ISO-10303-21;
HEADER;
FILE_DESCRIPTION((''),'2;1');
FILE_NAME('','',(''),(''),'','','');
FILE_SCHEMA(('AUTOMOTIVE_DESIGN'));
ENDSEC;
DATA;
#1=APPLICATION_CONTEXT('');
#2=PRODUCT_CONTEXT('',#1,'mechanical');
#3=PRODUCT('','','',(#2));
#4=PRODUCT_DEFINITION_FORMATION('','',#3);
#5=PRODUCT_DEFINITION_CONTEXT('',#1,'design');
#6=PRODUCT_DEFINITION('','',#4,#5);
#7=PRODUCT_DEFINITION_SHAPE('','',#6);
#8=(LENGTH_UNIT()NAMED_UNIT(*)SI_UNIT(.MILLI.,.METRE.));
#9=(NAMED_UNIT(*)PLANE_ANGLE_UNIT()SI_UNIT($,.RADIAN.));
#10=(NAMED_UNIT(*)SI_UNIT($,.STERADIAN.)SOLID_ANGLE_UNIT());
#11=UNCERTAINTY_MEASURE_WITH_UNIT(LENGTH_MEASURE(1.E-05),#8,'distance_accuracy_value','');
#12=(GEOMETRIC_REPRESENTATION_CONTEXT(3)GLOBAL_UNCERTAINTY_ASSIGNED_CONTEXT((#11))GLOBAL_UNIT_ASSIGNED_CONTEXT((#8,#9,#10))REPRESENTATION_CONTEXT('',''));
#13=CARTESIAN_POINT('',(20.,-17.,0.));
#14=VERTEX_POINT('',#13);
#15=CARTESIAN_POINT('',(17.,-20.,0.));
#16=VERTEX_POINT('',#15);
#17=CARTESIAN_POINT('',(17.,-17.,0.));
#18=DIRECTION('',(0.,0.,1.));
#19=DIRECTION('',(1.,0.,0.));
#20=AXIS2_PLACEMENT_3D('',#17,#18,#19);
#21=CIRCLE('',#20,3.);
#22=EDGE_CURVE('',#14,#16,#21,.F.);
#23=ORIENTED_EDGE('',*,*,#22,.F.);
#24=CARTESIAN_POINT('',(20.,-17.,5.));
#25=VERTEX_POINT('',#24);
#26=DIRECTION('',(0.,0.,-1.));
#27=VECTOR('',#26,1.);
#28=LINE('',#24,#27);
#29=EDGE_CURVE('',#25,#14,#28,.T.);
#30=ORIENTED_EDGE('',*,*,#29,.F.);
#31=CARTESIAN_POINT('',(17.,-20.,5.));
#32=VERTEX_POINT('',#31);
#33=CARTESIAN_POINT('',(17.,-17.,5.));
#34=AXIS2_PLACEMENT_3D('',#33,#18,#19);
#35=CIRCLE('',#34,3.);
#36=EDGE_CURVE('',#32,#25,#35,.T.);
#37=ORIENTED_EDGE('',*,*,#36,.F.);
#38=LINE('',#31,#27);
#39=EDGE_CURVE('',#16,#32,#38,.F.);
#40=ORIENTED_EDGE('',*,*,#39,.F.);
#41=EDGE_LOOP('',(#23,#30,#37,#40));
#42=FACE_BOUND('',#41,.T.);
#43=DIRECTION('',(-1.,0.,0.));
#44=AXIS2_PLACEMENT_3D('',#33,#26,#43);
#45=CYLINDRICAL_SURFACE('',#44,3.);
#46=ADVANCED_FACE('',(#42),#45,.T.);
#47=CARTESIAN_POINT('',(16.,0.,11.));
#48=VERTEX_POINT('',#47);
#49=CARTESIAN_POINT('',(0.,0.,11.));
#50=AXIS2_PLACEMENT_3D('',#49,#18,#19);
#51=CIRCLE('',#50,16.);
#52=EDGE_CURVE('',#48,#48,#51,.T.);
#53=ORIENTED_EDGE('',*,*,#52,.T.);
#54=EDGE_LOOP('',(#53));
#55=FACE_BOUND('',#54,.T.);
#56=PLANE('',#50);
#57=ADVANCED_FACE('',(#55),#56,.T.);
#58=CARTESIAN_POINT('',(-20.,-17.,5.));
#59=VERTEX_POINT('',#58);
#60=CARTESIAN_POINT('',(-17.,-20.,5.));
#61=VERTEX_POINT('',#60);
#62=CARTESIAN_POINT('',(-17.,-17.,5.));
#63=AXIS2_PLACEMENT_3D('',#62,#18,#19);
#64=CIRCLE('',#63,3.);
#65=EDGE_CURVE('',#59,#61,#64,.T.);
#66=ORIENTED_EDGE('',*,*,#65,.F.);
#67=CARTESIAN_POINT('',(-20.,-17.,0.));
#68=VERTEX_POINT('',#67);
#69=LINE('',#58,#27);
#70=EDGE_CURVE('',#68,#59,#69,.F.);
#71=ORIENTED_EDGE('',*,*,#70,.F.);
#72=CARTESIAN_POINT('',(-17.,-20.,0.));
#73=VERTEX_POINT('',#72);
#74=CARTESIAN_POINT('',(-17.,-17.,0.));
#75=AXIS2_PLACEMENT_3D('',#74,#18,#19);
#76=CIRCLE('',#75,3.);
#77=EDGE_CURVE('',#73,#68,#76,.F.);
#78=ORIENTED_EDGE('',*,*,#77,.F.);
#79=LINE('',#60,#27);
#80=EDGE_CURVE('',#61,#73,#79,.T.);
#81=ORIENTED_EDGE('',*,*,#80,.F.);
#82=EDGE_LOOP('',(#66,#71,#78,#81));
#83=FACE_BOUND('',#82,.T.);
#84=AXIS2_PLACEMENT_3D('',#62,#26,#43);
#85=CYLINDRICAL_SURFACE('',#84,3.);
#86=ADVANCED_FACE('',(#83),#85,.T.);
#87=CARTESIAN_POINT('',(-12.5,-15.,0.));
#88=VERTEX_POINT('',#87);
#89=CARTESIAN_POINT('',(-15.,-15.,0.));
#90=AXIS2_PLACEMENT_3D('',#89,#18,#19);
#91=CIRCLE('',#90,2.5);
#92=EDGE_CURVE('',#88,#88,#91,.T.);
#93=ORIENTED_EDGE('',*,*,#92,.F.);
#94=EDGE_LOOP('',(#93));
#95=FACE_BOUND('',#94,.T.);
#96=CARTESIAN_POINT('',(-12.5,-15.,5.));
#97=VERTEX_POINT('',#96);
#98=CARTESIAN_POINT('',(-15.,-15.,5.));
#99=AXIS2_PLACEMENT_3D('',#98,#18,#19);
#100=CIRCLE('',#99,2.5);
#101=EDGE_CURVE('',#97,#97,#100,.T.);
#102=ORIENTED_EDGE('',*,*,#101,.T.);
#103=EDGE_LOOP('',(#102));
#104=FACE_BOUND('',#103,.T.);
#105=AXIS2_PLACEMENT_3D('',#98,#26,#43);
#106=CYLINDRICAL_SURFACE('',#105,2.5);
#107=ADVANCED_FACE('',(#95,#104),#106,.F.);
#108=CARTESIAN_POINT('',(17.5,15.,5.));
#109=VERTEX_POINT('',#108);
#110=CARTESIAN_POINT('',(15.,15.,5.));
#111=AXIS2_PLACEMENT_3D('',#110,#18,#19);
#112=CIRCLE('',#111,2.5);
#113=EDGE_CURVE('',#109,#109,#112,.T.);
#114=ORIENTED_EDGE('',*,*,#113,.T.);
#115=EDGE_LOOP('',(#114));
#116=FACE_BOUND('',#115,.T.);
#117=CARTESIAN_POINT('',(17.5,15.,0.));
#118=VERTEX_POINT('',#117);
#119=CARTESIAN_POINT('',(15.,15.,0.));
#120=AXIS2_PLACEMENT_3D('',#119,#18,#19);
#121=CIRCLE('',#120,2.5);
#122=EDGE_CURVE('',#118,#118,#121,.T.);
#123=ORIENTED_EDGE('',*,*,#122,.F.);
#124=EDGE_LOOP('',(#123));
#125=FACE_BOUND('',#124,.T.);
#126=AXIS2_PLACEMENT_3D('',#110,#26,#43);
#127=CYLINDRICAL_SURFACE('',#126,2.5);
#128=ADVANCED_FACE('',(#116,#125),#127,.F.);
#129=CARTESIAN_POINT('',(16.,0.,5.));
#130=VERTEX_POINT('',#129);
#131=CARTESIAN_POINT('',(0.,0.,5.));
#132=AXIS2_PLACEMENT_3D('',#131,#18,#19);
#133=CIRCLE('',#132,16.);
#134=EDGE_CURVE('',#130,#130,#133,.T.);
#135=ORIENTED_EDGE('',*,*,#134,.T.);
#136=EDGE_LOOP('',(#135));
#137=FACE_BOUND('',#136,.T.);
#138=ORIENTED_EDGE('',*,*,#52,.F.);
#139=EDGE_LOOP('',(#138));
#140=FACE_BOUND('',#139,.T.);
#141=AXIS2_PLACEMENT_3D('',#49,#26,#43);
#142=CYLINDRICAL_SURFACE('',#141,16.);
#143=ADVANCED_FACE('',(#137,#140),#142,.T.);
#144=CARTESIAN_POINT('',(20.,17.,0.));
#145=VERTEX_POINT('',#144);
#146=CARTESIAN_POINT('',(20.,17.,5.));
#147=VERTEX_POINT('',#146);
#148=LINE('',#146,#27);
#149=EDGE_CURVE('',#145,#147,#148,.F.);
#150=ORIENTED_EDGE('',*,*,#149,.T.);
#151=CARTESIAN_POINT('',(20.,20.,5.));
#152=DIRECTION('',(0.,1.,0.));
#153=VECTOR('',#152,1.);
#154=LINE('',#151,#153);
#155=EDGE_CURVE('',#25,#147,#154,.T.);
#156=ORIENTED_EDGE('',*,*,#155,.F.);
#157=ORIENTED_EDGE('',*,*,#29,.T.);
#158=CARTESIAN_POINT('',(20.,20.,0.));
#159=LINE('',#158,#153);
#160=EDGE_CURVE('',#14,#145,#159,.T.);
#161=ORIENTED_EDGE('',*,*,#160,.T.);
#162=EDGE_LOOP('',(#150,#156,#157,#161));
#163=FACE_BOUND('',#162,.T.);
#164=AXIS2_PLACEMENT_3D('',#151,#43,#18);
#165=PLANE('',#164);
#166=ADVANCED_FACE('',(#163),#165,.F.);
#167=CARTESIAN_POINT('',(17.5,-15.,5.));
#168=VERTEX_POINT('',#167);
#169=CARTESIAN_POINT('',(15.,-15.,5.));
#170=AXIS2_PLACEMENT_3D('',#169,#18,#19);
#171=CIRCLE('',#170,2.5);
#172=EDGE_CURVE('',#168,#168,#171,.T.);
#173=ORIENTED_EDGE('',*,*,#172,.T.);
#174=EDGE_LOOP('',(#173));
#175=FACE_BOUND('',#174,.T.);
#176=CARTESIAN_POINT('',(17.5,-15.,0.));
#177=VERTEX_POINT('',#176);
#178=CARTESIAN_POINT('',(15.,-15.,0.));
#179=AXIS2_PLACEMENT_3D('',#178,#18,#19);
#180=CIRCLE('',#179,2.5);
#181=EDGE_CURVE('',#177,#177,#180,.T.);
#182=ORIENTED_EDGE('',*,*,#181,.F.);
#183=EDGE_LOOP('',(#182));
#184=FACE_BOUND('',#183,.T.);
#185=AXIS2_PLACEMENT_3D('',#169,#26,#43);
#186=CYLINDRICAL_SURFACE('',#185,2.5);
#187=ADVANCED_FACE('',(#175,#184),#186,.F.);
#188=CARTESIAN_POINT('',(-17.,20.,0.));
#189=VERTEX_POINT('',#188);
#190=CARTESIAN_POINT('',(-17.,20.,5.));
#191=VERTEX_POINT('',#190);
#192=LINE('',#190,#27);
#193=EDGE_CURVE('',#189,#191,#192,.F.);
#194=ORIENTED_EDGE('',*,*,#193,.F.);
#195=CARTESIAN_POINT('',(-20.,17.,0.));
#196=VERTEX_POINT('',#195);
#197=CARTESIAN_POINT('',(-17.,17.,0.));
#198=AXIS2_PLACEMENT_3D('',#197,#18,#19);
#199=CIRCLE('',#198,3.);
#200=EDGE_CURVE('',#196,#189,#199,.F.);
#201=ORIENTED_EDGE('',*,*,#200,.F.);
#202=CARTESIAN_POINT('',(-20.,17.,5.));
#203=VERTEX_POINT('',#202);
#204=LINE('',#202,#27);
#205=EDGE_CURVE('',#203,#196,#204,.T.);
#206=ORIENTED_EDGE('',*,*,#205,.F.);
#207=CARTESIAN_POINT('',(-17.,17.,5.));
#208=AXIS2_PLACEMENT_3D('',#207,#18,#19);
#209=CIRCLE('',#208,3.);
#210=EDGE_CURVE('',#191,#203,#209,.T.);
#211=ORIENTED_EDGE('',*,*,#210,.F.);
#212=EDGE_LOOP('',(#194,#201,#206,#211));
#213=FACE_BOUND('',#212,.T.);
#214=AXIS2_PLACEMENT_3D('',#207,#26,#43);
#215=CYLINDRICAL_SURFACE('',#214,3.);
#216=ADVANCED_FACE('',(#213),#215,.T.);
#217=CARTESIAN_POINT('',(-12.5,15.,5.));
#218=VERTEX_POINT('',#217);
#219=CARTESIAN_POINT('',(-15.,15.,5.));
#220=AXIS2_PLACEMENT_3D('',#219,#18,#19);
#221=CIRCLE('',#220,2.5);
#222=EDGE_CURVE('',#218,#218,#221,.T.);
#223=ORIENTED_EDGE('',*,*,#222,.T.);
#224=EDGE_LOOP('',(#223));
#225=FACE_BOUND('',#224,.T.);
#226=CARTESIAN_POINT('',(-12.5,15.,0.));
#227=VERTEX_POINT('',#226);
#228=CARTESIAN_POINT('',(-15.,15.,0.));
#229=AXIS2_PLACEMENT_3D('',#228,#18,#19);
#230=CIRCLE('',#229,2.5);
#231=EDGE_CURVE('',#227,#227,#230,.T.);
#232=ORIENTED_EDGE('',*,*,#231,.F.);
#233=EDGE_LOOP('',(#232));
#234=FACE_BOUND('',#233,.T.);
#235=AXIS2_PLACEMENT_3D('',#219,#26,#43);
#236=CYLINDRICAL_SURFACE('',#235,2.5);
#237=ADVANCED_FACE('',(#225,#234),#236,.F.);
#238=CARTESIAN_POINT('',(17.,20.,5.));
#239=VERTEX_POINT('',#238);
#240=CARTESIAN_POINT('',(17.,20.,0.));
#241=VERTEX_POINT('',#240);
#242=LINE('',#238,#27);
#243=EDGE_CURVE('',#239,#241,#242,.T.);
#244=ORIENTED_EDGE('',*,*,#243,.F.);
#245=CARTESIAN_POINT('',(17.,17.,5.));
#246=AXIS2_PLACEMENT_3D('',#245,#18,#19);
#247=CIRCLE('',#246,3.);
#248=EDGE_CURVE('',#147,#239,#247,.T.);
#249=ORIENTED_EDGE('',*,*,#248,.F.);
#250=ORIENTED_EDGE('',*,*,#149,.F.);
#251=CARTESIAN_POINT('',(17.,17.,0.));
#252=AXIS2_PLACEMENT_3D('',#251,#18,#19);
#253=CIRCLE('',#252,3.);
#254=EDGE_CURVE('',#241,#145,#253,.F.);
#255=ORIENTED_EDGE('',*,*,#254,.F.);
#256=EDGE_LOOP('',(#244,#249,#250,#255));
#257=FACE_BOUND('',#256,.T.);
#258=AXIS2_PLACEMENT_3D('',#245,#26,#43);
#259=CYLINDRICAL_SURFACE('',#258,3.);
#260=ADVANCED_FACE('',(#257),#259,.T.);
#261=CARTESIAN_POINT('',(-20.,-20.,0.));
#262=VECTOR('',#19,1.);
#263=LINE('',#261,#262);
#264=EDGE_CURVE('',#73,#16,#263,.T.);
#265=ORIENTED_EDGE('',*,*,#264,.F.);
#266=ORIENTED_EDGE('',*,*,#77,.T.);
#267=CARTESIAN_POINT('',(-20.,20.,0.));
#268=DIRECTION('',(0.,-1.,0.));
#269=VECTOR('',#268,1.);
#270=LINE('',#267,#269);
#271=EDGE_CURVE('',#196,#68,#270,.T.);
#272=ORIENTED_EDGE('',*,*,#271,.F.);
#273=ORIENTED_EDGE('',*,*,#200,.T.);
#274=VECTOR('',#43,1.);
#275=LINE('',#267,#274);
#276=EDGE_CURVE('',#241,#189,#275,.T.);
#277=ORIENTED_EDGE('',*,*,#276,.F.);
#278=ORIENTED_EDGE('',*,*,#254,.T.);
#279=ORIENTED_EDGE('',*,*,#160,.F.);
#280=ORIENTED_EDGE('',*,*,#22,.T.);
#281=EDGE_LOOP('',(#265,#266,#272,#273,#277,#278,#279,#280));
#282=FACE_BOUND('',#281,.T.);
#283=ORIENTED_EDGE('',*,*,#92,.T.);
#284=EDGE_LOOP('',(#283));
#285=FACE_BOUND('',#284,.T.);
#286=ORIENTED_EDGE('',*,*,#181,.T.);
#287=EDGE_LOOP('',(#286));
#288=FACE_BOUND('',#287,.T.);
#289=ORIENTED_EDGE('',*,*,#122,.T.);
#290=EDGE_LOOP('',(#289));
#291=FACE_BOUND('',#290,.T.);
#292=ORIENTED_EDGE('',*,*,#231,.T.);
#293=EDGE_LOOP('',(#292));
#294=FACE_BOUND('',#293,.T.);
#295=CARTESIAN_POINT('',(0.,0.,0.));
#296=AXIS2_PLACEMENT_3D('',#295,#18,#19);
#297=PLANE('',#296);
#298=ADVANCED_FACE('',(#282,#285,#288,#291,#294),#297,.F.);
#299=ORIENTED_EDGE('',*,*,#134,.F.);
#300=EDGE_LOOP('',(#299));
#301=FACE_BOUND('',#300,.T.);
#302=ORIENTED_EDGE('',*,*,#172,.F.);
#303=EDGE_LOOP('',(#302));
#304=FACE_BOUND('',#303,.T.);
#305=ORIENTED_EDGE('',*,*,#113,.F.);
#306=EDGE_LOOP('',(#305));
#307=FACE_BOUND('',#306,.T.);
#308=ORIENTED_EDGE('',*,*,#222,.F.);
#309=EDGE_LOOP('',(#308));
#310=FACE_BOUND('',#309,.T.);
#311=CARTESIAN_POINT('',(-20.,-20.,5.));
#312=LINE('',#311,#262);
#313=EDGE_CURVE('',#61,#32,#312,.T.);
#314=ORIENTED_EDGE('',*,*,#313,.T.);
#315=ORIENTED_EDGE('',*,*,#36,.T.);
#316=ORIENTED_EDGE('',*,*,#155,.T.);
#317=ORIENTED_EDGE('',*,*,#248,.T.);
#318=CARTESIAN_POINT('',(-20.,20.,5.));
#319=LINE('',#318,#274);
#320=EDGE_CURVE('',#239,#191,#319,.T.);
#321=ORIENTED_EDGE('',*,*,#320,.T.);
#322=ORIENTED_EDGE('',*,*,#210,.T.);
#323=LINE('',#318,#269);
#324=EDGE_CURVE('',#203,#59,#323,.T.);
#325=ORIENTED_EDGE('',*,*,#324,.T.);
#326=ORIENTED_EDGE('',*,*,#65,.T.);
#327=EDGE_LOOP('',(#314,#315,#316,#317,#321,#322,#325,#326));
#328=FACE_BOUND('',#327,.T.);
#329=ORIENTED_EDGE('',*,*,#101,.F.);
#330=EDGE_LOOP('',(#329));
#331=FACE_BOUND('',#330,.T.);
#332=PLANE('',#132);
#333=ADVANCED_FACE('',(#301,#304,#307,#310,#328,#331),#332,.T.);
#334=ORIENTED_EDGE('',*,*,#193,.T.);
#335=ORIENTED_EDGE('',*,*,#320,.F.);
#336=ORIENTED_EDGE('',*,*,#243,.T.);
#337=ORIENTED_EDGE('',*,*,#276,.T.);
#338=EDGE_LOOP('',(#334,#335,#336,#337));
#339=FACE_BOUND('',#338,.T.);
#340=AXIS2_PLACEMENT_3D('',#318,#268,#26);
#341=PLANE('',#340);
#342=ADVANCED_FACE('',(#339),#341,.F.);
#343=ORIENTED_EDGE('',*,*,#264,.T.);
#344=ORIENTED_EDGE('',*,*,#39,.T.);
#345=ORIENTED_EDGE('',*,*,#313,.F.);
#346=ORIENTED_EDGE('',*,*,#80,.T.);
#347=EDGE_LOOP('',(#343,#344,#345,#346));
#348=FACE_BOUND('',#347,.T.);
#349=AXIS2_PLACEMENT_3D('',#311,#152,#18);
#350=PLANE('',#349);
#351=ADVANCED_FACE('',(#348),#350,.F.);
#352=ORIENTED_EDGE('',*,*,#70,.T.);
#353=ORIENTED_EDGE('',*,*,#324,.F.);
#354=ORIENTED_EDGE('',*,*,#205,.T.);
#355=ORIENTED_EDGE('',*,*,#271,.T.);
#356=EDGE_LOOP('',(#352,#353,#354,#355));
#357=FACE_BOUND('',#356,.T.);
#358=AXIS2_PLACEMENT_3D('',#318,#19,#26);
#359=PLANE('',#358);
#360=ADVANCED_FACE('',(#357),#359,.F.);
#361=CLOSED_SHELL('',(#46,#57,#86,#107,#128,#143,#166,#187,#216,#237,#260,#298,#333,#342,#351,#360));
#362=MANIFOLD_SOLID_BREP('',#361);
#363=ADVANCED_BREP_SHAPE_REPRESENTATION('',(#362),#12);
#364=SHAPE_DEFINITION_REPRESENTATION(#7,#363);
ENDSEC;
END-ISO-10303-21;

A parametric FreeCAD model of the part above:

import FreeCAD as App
import Part
import Sketcher


def edges_at(feature, points):
    """Names of the edges that pass closest to the given points."""
    edges = feature.Shape.Edges
    near = lambda p: min(range(len(edges)), key=lambda i: edges[i].distToShape(Part.Vertex(*p))[0])
    return sorted({f"Edge{near(p) + 1}" for p in points})

doc = App.newDocument("Part")
params = doc.addObject("Spreadsheet::Sheet", "Params")
for row, (alias, value) in enumerate([
    ("sketch1_diameter", "5 mm"),
    ("sketch1_width", "40 mm"),
    ("pad1_length", "5 mm"),
    ("sketch2_diameter", "32 mm"),
    ("pad2_length", "6 mm"),
    ("fillet_radius", "3 mm"),
], start=1):
    params.set(f"A{row}", alias)
    params.set(f"B{row}", "=" + value)
    params.setAlias(f"B{row}", alias)

body = doc.addObject("PartDesign::Body", "Body")

sketch1 = body.newObject("Sketcher::SketchObject", "Sketch")
sketch1.AttachmentSupport = (doc.getObject("XY_Plane"), [""])
sketch1.MapMode = "FlatFace"
sketch1.addGeometry([
    Part.LineSegment(App.Vector(-20, 20, 0), App.Vector(-20, -20, 0)),
    Part.LineSegment(App.Vector(-20, -20, 0), App.Vector(20, -20, 0)),
    Part.LineSegment(App.Vector(20, -20, 0), App.Vector(20, 20, 0)),
    Part.LineSegment(App.Vector(20, 20, 0), App.Vector(-20, 20, 0)),
    Part.Circle(App.Vector(-15, -15, 0), App.Vector(0, 0, 1), 2.5),
    Part.Circle(App.Vector(15, -15, 0), App.Vector(0, 0, 1), 2.5),
    Part.Circle(App.Vector(-15, 15, 0), App.Vector(0, 0, 1), 2.5),
    Part.Circle(App.Vector(15, 15, 0), App.Vector(0, 0, 1), 2.5),
], False)
sketch1.addConstraint([
    Sketcher.Constraint("Coincident", 0, 2, 1, 1),
    Sketcher.Constraint("Coincident", 1, 2, 2, 1),
    Sketcher.Constraint("Coincident", 2, 2, 3, 1),
    Sketcher.Constraint("Coincident", 3, 2, 0, 1),
    Sketcher.Constraint("Vertical", 0),
    Sketcher.Constraint("Horizontal", 1),
    Sketcher.Constraint("Vertical", 2),
    Sketcher.Constraint("Horizontal", 3),
    Sketcher.Constraint("Equal", 4, 5),
    Sketcher.Constraint("Equal", 5, 6),
    Sketcher.Constraint("Equal", 6, 7),
    Sketcher.Constraint("Symmetric", 5, 3, 6, 3, -1, 1),
    Sketcher.Constraint("Symmetric", 4, 3, 7, 3, -1, 1),
    Sketcher.Constraint("Symmetric", 0, 2, 2, 2, -1, 1),
    Sketcher.Constraint("Symmetric", 4, 3, 5, 3, -2),
    Sketcher.Constraint("Equal", 3, 0),
    Sketcher.Constraint("Diameter", 4, 5.0),
    Sketcher.Constraint("DistanceX", 1, 1, 1, 2, 40.0),
    Sketcher.Constraint("DistanceX", 4, 3, -1, 1, 15.0),
    Sketcher.Constraint("DistanceY", 4, 3, -1, 1, 15.0),
])
sketch1.setExpression("Constraints[16]", "Params.sketch1_diameter")
sketch1.setExpression("Constraints[17]", "Params.sketch1_width")
pad1 = body.newObject("PartDesign::Pad", "Pad")
pad1.Profile = sketch1
pad1.setExpression("Length", "Params.pad1_length")

sketch2 = body.newObject("Sketcher::SketchObject", "Sketch001")
sketch2.AttachmentSupport = (doc.getObject("XY_Plane"), [""])
sketch2.MapMode = "FlatFace"
sketch2.AttachmentOffset = App.Placement(App.Vector(0, 0, 5), App.Rotation())
sketch2.addGeometry(Part.Circle(App.Vector(0, 0, 0), App.Vector(0, 0, 1), 16), False)
sketch2.addConstraint([
    Sketcher.Constraint("Coincident", 0, 3, -1, 1),
    Sketcher.Constraint("Diameter", 0, 32.0),
])
sketch2.setExpression("Constraints[1]", "Params.sketch2_diameter")
pad2 = body.newObject("PartDesign::Pad", "Pad001")
pad2.Profile = sketch2
pad2.setExpression("Length", "Params.pad2_length")
doc.recompute()

fillet = body.newObject("PartDesign::Fillet", "Fillet")
fillet.Base = (pad2, edges_at(pad2, [
    (20, -20, 2.5),
    (-20, -20, 2.5),
    (-20, 20, 2.5),
    (20, 20, 2.5),
]))
fillet.setExpression("Radius", "Params.fillet_radius")

doc.recompute()
